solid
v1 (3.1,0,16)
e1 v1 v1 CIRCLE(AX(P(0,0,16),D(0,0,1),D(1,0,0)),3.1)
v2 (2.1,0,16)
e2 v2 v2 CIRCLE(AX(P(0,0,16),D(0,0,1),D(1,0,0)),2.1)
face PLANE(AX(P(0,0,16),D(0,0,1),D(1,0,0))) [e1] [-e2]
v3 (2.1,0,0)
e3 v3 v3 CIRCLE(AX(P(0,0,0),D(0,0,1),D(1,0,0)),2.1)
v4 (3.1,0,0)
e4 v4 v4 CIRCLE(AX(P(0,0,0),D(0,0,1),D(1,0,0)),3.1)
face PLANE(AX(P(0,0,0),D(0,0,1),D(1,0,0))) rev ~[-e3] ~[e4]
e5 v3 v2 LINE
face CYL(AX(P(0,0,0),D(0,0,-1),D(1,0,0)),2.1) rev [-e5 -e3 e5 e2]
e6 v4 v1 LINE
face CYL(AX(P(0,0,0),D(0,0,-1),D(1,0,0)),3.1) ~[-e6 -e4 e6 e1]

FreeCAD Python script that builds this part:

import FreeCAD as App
import Part
import Sketcher

V = App.Vector

doc = App.newDocument("Part")
body = doc.addObject("PartDesign::Body", "Body")

# Sketch on XY plane
sketch1 = body.newObject("Sketcher::SketchObject", "Sketch")
sketch1.AttachmentSupport = (doc.getObject("XY_Plane"), [""])
sketch1.MapMode = "FlatFace"
sketch1.addGeometry([
    Part.Circle(V(0, 0, 0), V(0, 0, 1), 3.1),
    Part.Circle(V(0, 0, 0), V(0, 0, 1), 2.1),
], False)
sketch1.addConstraint([
    Sketcher.Constraint("Coincident", 0, 3, -1, 1),
    Sketcher.Constraint("Coincident", 1, 3, -1, 1),
    Sketcher.Constraint("Diameter", 1, 4.2),
    Sketcher.Constraint("Diameter", 0, 6.2),
])
pad1 = body.newObject("PartDesign::Pad", "Pad")
pad1.Profile = sketch1
pad1.Length = 16

doc.recompute()
